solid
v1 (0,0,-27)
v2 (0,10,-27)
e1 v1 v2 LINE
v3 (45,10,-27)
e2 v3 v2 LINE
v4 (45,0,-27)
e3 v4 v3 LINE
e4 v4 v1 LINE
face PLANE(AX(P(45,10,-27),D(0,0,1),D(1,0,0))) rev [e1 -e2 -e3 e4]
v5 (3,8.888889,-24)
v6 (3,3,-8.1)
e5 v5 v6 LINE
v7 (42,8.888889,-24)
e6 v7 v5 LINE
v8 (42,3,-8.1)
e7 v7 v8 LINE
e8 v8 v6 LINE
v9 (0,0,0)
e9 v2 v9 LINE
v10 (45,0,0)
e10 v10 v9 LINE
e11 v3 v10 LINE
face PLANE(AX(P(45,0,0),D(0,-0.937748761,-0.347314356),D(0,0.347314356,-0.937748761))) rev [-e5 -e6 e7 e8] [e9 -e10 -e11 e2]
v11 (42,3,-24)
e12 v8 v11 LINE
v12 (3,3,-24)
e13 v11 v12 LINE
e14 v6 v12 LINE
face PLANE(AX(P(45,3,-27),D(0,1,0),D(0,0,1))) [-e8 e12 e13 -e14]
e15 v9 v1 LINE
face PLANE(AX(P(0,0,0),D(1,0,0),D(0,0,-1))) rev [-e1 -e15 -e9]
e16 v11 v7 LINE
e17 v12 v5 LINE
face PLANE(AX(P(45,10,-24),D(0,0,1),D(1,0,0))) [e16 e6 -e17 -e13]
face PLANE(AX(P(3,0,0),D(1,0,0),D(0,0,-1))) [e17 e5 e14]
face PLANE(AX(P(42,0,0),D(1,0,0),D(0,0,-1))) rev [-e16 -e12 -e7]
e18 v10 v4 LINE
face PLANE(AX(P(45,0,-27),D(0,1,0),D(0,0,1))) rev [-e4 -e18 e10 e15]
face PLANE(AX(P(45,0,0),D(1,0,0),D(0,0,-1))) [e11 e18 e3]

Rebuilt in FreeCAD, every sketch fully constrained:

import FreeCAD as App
import Part
import Sketcher
from FreeCAD import Vector


def faces_at(feature, points):
    """Names of the faces that lie closest to the given points."""
    faces = feature.Shape.Faces
    near = lambda p: min(range(len(faces)), key=lambda i: faces[i].distToShape(Part.Vertex(*p))[0])
    return sorted({f"Face{near(p) + 1}" for p in points})


def add_polygon(sketch, points):
    """Adds a closed chain of lines whose ends are joined by coincident constraints."""
    first, n = sketch.GeometryCount, len(points)
    for a, b in zip(points, points[1:] + points[:1]):
        sketch.addGeometry(Part.LineSegment(App.Vector(*a, 0), App.Vector(*b, 0)), False)
    for i in range(n):
        sketch.addConstraint(Sketcher.Constraint("Coincident", first + i, 2, first + (i + 1) % n, 1))

doc = App.newDocument("Part")
body = doc.addObject("PartDesign::Body", "Body")

# Sketch on YZ plane
sketch1 = body.newObject("Sketcher::SketchObject", "Sketch")
sketch1.AttachmentSupport = (doc.getObject("YZ_Plane"), [""])
sketch1.MapMode = "FlatFace"
add_polygon(sketch1, [(10, -27), (0, 0), (0, -27)])  # lines 0-2
sketch1.addConstraint(Sketcher.Constraint("Vertical", 1))
sketch1.addConstraint(Sketcher.Constraint("Horizontal", 2))
sketch1.addConstraint(Sketcher.Constraint("Coincident", 0, 2, -1, 1))
sketch1.addConstraint(Sketcher.Constraint("DistanceX", 2, 1, 2, 2, 10.0))
sketch1.addConstraint(Sketcher.Constraint("DistanceY", 1, 2, 1, 1, 27.0))
pad1 = body.newObject("PartDesign::Pad", "Pad")
pad1.Profile = sketch1
pad1.Length = 45
doc.recompute()

thickness = body.newObject("PartDesign::Thickness", "Thickness")
thickness.Base = (pad1, faces_at(pad1, [(22.5, 5, -13.5)]))
thickness.Value = 3
thickness.Reversed = True
thickness.Join = "Intersection"

doc.recompute()
